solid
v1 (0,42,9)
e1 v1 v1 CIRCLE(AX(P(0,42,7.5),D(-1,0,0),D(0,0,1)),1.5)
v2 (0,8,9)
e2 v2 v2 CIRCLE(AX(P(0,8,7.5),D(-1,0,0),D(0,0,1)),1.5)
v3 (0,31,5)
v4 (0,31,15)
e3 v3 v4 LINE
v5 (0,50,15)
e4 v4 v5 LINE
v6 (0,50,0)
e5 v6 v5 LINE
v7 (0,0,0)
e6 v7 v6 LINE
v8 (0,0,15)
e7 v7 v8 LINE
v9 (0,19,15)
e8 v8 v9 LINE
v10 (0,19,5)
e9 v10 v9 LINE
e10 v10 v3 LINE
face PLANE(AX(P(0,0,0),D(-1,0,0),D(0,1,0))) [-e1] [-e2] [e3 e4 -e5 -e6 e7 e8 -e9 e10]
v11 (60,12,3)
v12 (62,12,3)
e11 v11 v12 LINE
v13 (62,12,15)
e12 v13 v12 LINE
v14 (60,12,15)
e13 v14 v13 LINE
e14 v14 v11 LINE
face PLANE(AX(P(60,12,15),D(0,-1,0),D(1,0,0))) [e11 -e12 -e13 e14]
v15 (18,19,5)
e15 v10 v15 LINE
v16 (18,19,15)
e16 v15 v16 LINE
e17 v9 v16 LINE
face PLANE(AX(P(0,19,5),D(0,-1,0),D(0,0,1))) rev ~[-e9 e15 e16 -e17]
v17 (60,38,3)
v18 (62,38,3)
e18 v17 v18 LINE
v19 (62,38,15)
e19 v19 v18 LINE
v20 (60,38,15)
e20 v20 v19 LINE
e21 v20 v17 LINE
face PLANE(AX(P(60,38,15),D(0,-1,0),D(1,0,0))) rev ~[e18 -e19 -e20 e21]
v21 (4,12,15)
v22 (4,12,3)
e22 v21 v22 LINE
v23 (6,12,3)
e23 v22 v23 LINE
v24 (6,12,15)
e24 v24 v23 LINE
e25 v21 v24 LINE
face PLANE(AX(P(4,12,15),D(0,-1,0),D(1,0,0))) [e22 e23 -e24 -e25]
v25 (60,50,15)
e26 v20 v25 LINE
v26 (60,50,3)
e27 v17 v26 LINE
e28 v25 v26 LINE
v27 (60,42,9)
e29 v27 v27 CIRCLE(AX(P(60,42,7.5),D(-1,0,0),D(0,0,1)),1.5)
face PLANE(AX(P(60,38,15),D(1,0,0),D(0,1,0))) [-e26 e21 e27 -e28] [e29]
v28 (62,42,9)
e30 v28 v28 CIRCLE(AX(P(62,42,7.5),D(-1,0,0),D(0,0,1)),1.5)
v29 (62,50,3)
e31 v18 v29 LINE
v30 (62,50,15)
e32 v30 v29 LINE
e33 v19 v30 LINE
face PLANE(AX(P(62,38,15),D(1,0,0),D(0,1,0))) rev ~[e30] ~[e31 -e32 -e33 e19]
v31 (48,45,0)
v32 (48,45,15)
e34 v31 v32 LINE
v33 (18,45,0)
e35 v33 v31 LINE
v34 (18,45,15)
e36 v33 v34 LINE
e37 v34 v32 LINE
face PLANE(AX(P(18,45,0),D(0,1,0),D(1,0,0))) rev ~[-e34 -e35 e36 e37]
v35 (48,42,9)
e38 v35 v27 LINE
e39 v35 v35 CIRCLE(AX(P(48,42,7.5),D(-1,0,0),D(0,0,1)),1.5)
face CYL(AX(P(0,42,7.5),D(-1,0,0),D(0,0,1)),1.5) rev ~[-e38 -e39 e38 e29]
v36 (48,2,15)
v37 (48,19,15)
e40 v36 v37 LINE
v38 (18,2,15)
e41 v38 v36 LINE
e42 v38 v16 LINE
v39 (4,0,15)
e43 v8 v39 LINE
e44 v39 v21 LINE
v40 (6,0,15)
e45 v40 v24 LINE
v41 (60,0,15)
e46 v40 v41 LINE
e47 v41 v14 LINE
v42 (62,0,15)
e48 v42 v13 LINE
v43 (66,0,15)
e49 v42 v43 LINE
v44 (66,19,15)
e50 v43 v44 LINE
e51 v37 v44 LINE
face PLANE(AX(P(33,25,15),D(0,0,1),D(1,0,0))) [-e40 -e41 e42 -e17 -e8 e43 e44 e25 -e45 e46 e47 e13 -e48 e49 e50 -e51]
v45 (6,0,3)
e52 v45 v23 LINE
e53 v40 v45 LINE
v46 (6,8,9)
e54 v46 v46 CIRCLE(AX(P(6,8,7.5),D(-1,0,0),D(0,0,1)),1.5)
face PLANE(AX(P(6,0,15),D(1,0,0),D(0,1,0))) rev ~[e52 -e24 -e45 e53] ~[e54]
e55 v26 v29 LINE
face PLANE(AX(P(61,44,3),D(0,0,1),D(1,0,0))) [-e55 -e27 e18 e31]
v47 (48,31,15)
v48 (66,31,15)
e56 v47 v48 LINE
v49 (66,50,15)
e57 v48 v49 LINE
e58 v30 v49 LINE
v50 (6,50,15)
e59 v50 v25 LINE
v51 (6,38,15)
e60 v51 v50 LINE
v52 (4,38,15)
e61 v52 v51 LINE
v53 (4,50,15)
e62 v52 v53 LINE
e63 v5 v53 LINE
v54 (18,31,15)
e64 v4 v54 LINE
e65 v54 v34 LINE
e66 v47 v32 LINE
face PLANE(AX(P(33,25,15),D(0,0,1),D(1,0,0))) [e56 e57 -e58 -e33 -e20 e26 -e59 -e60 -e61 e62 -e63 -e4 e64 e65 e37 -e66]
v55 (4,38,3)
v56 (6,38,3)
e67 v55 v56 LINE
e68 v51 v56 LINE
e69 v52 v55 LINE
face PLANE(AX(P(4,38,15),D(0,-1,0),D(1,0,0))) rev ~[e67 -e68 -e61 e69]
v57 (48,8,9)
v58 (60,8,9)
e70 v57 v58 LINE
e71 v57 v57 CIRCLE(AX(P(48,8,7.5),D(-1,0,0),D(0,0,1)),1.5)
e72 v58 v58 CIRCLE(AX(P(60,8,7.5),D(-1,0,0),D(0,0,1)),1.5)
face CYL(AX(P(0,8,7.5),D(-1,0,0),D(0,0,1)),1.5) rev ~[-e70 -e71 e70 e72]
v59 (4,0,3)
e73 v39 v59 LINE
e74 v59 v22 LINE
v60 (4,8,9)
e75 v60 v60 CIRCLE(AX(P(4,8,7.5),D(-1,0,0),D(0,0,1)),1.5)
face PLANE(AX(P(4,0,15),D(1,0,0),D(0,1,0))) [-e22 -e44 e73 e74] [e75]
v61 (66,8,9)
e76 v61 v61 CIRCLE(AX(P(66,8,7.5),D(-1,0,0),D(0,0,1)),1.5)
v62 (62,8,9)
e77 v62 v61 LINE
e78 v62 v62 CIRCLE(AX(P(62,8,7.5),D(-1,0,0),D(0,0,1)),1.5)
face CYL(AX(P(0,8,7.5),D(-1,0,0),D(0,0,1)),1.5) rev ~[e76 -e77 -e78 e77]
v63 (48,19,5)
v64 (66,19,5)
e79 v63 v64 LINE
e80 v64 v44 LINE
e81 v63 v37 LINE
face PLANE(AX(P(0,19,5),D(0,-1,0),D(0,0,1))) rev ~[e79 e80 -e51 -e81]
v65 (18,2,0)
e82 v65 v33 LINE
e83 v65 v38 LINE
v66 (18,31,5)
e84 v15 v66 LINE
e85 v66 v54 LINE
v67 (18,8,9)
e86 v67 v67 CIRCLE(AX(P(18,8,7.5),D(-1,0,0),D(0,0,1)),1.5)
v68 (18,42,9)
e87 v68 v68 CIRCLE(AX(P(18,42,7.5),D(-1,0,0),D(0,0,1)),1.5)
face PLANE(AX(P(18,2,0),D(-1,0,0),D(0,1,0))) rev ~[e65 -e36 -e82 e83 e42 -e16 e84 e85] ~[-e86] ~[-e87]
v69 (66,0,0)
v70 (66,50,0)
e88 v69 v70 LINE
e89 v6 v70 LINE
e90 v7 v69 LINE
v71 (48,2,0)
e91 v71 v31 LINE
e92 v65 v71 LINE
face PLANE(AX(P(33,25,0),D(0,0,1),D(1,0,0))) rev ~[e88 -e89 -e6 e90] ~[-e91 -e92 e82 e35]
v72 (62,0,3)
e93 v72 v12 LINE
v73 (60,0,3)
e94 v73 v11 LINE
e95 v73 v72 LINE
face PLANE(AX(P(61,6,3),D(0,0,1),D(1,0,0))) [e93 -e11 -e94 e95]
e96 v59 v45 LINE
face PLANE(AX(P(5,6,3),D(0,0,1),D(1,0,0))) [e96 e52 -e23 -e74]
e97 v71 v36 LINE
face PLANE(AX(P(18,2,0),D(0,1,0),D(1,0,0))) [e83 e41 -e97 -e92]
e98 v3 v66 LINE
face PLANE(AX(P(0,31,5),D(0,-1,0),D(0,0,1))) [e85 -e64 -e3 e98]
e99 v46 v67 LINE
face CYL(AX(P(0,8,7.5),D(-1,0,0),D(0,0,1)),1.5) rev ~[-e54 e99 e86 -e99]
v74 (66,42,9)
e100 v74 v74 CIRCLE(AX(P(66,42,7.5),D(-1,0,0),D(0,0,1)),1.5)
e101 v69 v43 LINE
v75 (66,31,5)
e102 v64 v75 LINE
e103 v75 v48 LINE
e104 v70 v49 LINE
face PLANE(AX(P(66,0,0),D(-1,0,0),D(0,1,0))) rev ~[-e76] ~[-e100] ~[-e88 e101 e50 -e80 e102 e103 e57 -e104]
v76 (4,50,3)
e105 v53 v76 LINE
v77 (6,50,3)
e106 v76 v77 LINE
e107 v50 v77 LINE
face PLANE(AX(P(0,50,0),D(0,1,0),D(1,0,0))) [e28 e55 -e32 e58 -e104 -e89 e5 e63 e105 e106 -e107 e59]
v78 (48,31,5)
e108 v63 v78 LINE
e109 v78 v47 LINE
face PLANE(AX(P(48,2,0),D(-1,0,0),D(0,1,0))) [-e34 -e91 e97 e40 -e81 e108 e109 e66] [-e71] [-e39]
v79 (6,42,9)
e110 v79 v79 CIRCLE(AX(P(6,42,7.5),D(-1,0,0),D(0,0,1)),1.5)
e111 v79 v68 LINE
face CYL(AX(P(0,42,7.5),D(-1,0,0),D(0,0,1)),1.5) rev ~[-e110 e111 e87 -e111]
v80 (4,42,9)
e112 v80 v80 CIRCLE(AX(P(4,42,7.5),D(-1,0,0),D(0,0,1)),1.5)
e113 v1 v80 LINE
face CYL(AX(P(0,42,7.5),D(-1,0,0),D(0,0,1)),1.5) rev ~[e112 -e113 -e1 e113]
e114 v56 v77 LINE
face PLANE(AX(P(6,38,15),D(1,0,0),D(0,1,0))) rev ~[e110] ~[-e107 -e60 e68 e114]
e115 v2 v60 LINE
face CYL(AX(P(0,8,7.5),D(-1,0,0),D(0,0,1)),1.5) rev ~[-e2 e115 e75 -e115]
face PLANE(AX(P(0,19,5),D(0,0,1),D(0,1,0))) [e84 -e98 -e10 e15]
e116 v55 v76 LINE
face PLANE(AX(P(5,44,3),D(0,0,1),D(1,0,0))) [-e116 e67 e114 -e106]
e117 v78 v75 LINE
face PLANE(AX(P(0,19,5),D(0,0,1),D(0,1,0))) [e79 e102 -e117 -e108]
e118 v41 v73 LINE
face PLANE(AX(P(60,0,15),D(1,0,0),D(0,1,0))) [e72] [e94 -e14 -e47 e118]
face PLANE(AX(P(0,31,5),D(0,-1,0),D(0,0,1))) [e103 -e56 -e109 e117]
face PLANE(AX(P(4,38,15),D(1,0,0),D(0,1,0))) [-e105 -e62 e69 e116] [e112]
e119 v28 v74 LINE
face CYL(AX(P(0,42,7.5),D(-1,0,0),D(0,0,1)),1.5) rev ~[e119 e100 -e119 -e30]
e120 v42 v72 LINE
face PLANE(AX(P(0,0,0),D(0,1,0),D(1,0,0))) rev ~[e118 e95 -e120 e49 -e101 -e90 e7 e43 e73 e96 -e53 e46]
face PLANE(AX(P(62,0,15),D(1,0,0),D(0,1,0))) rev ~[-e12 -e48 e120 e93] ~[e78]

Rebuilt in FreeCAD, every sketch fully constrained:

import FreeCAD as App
import Part
import Sketcher
Q = App.Units.Quantity

doc = App.newDocument("Part")
params = doc.addObject("Spreadsheet::Sheet", "Params")
for row, (alias, value) in enumerate([
    ("sketch1_width", "66 mm"),
    ("sketch1_width2", "30 mm"),
    ("sketch1_height", "50 mm"),
    ("sketch1_height2", "43 mm"),
    ("pad1_length", "15 mm"),
    ("sketch2_diameter", "3 mm"),
    ("sketch2_width", "12 mm"),
    ("sketch2_height", "10 mm"),
    ("sketch3_width", "2 mm"),
    ("sketch3_height", "12 mm"),
    ("pocket2_length", "12 mm"),
], start=1):
    params.set(f"A{row}", alias)
    params.set(f"B{row}", "=" + value)
    params.setAlias(f"B{row}", alias)

body = doc.addObject("PartDesign::Body", "Body")

sketch1 = doc.addObject("Sketcher::SketchObject", "Sketch")
body.addObject(sketch1)
sketch1.AttachmentSupport = (doc.XY_Plane, [""])
sketch1.MapMode = "FlatFace"
sketch1.addGeometry([
    Part.LineSegment(App.Vector(0, 50, 0), App.Vector(0, 0, 0)),
    Part.LineSegment(App.Vector(0, 0, 0), App.Vector(66, 0, 0)),
    Part.LineSegment(App.Vector(66, 0, 0), App.Vector(66, 50, 0)),
    Part.LineSegment(App.Vector(66, 50, 0), App.Vector(0, 50, 0)),
    Part.LineSegment(App.Vector(48, 2, 0), App.Vector(18, 2, 0)),
    Part.LineSegment(App.Vector(18, 2, 0), App.Vector(18, 45, 0)),
    Part.LineSegment(App.Vector(18, 45, 0), App.Vector(48, 45, 0)),
    Part.LineSegment(App.Vector(48, 45, 0), App.Vector(48, 2, 0)),
], False)
sketch1.addConstraint([
    Sketcher.Constraint("Coincident", 0, 2, 1, 1),
    Sketcher.Constraint("Coincident", 1, 2, 2, 1),
    Sketcher.Constraint("Coincident", 2, 2, 3, 1),
    Sketcher.Constraint("Coincident", 3, 2, 0, 1),
    Sketcher.Constraint("Coincident", 4, 2, 5, 1),
    Sketcher.Constraint("Coincident", 5, 2, 6, 1),
    Sketcher.Constraint("Coincident", 6, 2, 7, 1),
    Sketcher.Constraint("Coincident", 7, 2, 4, 1),
    Sketcher.Constraint("Vertical", 0),
    Sketcher.Constraint("Horizontal", 1),
    Sketcher.Constraint("Vertical", 2),
    Sketcher.Constraint("Horizontal", 3),
    Sketcher.Constraint("Horizontal", 4),
    Sketcher.Constraint("Vertical", 5),
    Sketcher.Constraint("Horizontal", 6),
    Sketcher.Constraint("Vertical", 7),
    Sketcher.Constraint("Coincident", 0, 2, -1, 1),
    Sketcher.Constraint("DistanceX", 1, 1, 1, 2, Q("66 mm")),
    Sketcher.Constraint("DistanceX", 4, 2, 4, 1, Q("30 mm")),
    Sketcher.Constraint("DistanceY", 0, 2, 0, 1, Q("50 mm")),
    Sketcher.Constraint("DistanceY", 5, 1, 5, 2, Q("43 mm")),
    Sketcher.Constraint("DistanceX", -1, 1, 4, 2, Q("18 mm")),
    Sketcher.Constraint("DistanceY", -1, 1, 4, 2, Q("2 mm")),
])
sketch1.setExpression("Constraints[17]", "Params.sketch1_width")
sketch1.setExpression("Constraints[18]", "Params.sketch1_width2")
sketch1.setExpression("Constraints[19]", "Params.sketch1_height")
sketch1.setExpression("Constraints[20]", "Params.sketch1_height2")
pad1 = doc.addObject("PartDesign::Pad", "Pad")
body.addObject(pad1)
pad1.Profile = sketch1
pad1.setExpression("Length", "Params.pad1_length")

sketch2 = doc.addObject("Sketcher::SketchObject", "Sketch001")
body.addObject(sketch2)
sketch2.AttachmentSupport = (doc.YZ_Plane, [""])
sketch2.MapMode = "FlatFace"
sketch2.addGeometry([
    Part.Circle(App.Vector(42, 7.5, 0), App.Vector(0, 0, 1), 1.5),
    Part.Circle(App.Vector(8, 7.5, 0), App.Vector(0, 0, 1), 1.5),
    Part.LineSegment(App.Vector(31, 5, 0), App.Vector(19, 5, 0)),
    Part.LineSegment(App.Vector(19, 5, 0), App.Vector(19, 15, 0)),
    Part.LineSegment(App.Vector(19, 15, 0), App.Vector(31, 15, 0)),
    Part.LineSegment(App.Vector(31, 15, 0), App.Vector(31, 5, 0)),
], False)
sketch2.addConstraint([
    Sketcher.Constraint("Coincident", 2, 2, 3, 1),
    Sketcher.Constraint("Coincident", 3, 2, 4, 1),
    Sketcher.Constraint("Coincident", 4, 2, 5, 1),
    Sketcher.Constraint("Coincident", 5, 2, 2, 1),
    Sketcher.Constraint("Horizontal", 2),
    Sketcher.Constraint("Vertical", 3),
    Sketcher.Constraint("Horizontal", 4),
    Sketcher.Constraint("Vertical", 5),
    Sketcher.Constraint("Equal", 0, 1),
    Sketcher.Constraint("Horizontal", 0, 3, 1, 3),
    Sketcher.Constraint("Diameter", 0, Q("3 mm")),
    Sketcher.Constraint("DistanceX", 2, 2, 2, 1, Q("12 mm")),
    Sketcher.Constraint("DistanceY", 3, 1, 3, 2, Q("10 mm")),
    Sketcher.Constraint("DistanceX", -1, 1, 0, 3, Q("42 mm")),
    Sketcher.Constraint("DistanceX", -1, 1, 1, 3, Q("8 mm")),
    Sketcher.Constraint("DistanceX", -1, 1, 2, 2, Q("19 mm")),
    Sketcher.Constraint("DistanceY", -1, 1, 2, 2, Q("5 mm")),
    Sketcher.Constraint("DistanceY", -1, 1, 0, 3, Q("7.5 mm")),
])
sketch2.setExpression("Constraints[10]", "Params.sketch2_diameter")
sketch2.setExpression("Constraints[11]", "Params.sketch2_width")
sketch2.setExpression("Constraints[12]", "Params.sketch2_height")
pocket1 = doc.addObject("PartDesign::Pocket", "Pocket")
body.addObject(pocket1)
pocket1.Profile = sketch2
pocket1.Type = "ThroughAll"
pocket1.Reversed = True

sketch3 = doc.addObject("Sketcher::SketchObject", "Sketch002")
body.addObject(sketch3)
sketch3.AttachmentSupport = (doc.XY_Plane, [""])
sketch3.MapMode = "FlatFace"
sketch3.AttachmentOffset = App.Placement(App.Vector(0, 0, 15), App.Rotation())
sketch3.addGeometry([
    Part.LineSegment(App.Vector(4, 50, 0), App.Vector(4, 38, 0)),
    Part.LineSegment(App.Vector(4, 38, 0), App.Vector(6, 38, 0)),
    Part.LineSegment(App.Vector(6, 38, 0), App.Vector(6, 50, 0)),
    Part.LineSegment(App.Vector(6, 50, 0), App.Vector(4, 50, 0)),
    Part.LineSegment(App.Vector(60, 50, 0), App.Vector(60, 38, 0)),
    Part.LineSegment(App.Vector(60, 38, 0), App.Vector(62, 38, 0)),
    Part.LineSegment(App.Vector(62, 38, 0), App.Vector(62, 50, 0)),
    Part.LineSegment(App.Vector(62, 50, 0), App.Vector(60, 50, 0)),
    Part.LineSegment(App.Vector(4, 12, 0), App.Vector(4, 0, 0)),
    Part.LineSegment(App.Vector(4, 0, 0), App.Vector(6, 0, 0)),
    Part.LineSegment(App.Vector(6, 0, 0), App.Vector(6, 12, 0)),
    Part.LineSegment(App.Vector(6, 12, 0), App.Vector(4, 12, 0)),
    Part.LineSegment(App.Vector(60, 12, 0), App.Vector(60, 0, 0)),
    Part.LineSegment(App.Vector(60, 0, 0), App.Vector(62, 0, 0)),
    Part.LineSegment(App.Vector(62, 0, 0), App.Vector(62, 12, 0)),
    Part.LineSegment(App.Vector(62, 12, 0), App.Vector(60, 12, 0)),
], False)
sketch3.addConstraint([
    Sketcher.Constraint("Coincident", 0, 2, 1, 1),
    Sketcher.Constraint("Coincident", 1, 2, 2, 1),
    Sketcher.Constraint("Coincident", 2, 2, 3, 1),
    Sketcher.Constraint("Coincident", 3, 2, 0, 1),
    Sketcher.Constraint("Coincident", 4, 2, 5, 1),
    Sketcher.Constraint("Coincident", 5, 2, 6, 1),
    Sketcher.Constraint("Coincident", 6, 2, 7, 1),
    Sketcher.Constraint("Coincident", 7, 2, 4, 1),
    Sketcher.Constraint("Coincident", 8, 2, 9, 1),
    Sketcher.Constraint("Coincident", 9, 2, 10, 1),
    Sketcher.Constraint("Coincident", 10, 2, 11, 1),
    Sketcher.Constraint("Coincident", 11, 2, 8, 1),
    Sketcher.Constraint("Coincident", 12, 2, 13, 1),
    Sketcher.Constraint("Coincident", 13, 2, 14, 1),
    Sketcher.Constraint("Coincident", 14, 2, 15, 1),
    Sketcher.Constraint("Coincident", 15, 2, 12, 1),
    Sketcher.Constraint("Vertical", 0),
    Sketcher.Constraint("Horizontal", 1),
    Sketcher.Constraint("Vertical", 2),
    Sketcher.Constraint("Horizontal", 3),
    Sketcher.Constraint("Vertical", 4),
    Sketcher.Constraint("Horizontal", 5),
    Sketcher.Constraint("Vertical", 6),
    Sketcher.Constraint("Horizontal", 7),
    Sketcher.Constraint("Vertical", 8),
    Sketcher.Constraint("Horizontal", 9),
    Sketcher.Constraint("Vertical", 10),
    Sketcher.Constraint("Horizontal", 11),
    Sketcher.Constraint("Vertical", 12),
    Sketcher.Constraint("Horizontal", 13),
    Sketcher.Constraint("Vertical", 14),
    Sketcher.Constraint("Horizontal", 15),
    Sketcher.Constraint("PointOnObject", 8, 2, -1),
    Sketcher.Constraint("PointOnObject", 12, 2, -1),
    Sketcher.Constraint("Horizontal", 1, 2, 4, 2),
    Sketcher.Constraint("Horizontal", 3, 2, 6, 2),
    Sketcher.Constraint("Horizontal", 11, 2, 14, 2),
    Sketcher.Constraint("Vertical", 3, 2, 8, 2),
    Sketcher.Constraint("Vertical", 2, 2, 9, 2),
    Sketcher.Constraint("Vertical", 7, 2, 12, 2),
    Sketcher.Constraint("Vertical", 6, 2, 13, 2),
    Sketcher.Constraint("Equal", 3, 5),
    Sketcher.Constraint("Equal", 6, 8),
    Sketcher.Constraint("DistanceX", 1, 1, 1, 2, Q("2 mm")),
    Sketcher.Constraint("DistanceY", 0, 2, 0, 1, Q("12 mm")),
    Sketcher.Constraint("DistanceX", -1, 1, 0, 2, Q("4 mm")),
    Sketcher.Constraint("DistanceY", -1, 1, 0, 2, Q("38 mm")),
    Sketcher.Constraint("DistanceX", -1, 1, 4, 2, Q("60 mm")),
])
sketch3.setExpression("Constraints[43]", "Params.sketch3_width")
sketch3.setExpression("Constraints[44]", "Params.sketch3_height")
pocket2 = doc.addObject("PartDesign::Pocket", "Pocket001")
body.addObject(pocket2)
pocket2.Profile = sketch3
pocket2.setExpression("Length", "Params.pocket2_length")

doc.recompute()
